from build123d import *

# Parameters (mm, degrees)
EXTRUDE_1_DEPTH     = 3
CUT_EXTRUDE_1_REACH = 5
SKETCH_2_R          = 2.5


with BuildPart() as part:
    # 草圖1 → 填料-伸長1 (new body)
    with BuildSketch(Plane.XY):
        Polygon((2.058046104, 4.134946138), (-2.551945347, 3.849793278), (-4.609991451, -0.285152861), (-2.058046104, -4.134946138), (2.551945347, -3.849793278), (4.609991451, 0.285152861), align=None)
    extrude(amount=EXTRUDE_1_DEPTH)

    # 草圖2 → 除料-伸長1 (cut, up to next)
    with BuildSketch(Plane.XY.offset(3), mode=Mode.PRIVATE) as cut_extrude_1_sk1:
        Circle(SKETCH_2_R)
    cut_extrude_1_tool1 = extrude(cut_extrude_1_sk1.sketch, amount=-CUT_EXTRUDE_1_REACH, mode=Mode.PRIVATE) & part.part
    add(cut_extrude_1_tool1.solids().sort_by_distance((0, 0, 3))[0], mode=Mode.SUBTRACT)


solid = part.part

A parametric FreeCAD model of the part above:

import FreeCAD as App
import Part
import Sketcher
from FreeCAD import Vector

doc = App.newDocument("Part")
params = doc.addObject("Spreadsheet::Sheet", "Params")
for row, (alias, value) in enumerate([
    ("pad1_length", "3 mm"),
    ("sketch2_diameter", "5 mm"),
], start=1):
    params.set(f"A{row}", alias)
    params.set(f"B{row}", "=" + value)
    params.setAlias(f"B{row}", alias)

body = doc.addObject("PartDesign::Body", "Body")

# Sketch on XY plane
sketch1 = body.newObject("Sketcher::SketchObject", "Sketch")
sketch1.AttachmentSupport = (doc.getObject("XY_Plane"), [""])
sketch1.MapMode = "FlatFace"
sketch1.addGeometry([
    Part.LineSegment(Vector(2.1, 4.1, 0), Vector(-2.6, 3.8, 0)),  # 0
    Part.LineSegment(Vector(-2.6, 3.8, 0), Vector(-4.6, -0.3, 0)),  # 1
    Part.LineSegment(Vector(-4.6, -0.3, 0), Vector(-2.1, -4.1, 0)),  # 2
    Part.LineSegment(Vector(-2.1, -4.1, 0), Vector(2.6, -3.8, 0)),  # 3
    Part.LineSegment(Vector(2.6, -3.8, 0), Vector(4.6, 0.3, 0)),  # 4
    Part.LineSegment(Vector(4.6, 0.3, 0), Vector(2.1, 4.1, 0)),  # 5
], False)
sketch1.addConstraint([
    Sketcher.Constraint("Coincident", 0, 2, 1, 1),
    Sketcher.Constraint("Coincident", 1, 2, 2, 1),
    Sketcher.Constraint("Coincident", 2, 2, 3, 1),
    Sketcher.Constraint("Coincident", 3, 2, 4, 1),
    Sketcher.Constraint("Coincident", 4, 2, 5, 1),
    Sketcher.Constraint("Coincident", 5, 2, 0, 1),
    Sketcher.Constraint("Symmetric", 0, 2, 3, 2, -1, 1),
    Sketcher.Constraint("Symmetric", 1, 2, 4, 2, -1, 1),
    Sketcher.Constraint("Symmetric", 2, 2, 5, 2, -1, 1),
    Sketcher.Constraint("Equal", 0, 1),
    Sketcher.Constraint("Equal", 1, 2),
    Sketcher.Constraint("DistanceX", 0, 2, 2, 2, 0.493899),
    Sketcher.Constraint("DistanceY", 2, 2, 4, 2, 4.420099),
    Sketcher.Constraint("DistanceX", 1, 2, -1, 1, 4.609991),
    Sketcher.Constraint("DistanceY", 2, 2, 0, 2, 7.984739),
])
pad1 = body.newObject("PartDesign::Pad", "Pad")
pad1.Profile = sketch1
pad1.setExpression("Length", "Params.pad1_length")

# Sketch on XY plane
sketch2 = body.newObject("Sketcher::SketchObject", "Sketch001")
sketch2.AttachmentSupport = (doc.getObject("XY_Plane"), [""])
sketch2.MapMode = "FlatFace"
sketch2.AttachmentOffset = App.Placement(Vector(0, 0, 3), App.Rotation())
sketch2.addGeometry(Part.Circle(Vector(0, 0, 0), Vector(0, 0, 1), 2.5), False)
sketch2.addConstraint([
    Sketcher.Constraint("Coincident", 0, 3, -1, 1),
    Sketcher.Constraint("Diameter", 0, 5.0),
])
sketch2.setExpression("Constraints[1]", "Params.sketch2_diameter")
pocket1 = body.newObject("PartDesign::Pocket", "Pocket")
pocket1.Profile = sketch2
pocket1.Type = "UpToFirst"

doc.recompute()
